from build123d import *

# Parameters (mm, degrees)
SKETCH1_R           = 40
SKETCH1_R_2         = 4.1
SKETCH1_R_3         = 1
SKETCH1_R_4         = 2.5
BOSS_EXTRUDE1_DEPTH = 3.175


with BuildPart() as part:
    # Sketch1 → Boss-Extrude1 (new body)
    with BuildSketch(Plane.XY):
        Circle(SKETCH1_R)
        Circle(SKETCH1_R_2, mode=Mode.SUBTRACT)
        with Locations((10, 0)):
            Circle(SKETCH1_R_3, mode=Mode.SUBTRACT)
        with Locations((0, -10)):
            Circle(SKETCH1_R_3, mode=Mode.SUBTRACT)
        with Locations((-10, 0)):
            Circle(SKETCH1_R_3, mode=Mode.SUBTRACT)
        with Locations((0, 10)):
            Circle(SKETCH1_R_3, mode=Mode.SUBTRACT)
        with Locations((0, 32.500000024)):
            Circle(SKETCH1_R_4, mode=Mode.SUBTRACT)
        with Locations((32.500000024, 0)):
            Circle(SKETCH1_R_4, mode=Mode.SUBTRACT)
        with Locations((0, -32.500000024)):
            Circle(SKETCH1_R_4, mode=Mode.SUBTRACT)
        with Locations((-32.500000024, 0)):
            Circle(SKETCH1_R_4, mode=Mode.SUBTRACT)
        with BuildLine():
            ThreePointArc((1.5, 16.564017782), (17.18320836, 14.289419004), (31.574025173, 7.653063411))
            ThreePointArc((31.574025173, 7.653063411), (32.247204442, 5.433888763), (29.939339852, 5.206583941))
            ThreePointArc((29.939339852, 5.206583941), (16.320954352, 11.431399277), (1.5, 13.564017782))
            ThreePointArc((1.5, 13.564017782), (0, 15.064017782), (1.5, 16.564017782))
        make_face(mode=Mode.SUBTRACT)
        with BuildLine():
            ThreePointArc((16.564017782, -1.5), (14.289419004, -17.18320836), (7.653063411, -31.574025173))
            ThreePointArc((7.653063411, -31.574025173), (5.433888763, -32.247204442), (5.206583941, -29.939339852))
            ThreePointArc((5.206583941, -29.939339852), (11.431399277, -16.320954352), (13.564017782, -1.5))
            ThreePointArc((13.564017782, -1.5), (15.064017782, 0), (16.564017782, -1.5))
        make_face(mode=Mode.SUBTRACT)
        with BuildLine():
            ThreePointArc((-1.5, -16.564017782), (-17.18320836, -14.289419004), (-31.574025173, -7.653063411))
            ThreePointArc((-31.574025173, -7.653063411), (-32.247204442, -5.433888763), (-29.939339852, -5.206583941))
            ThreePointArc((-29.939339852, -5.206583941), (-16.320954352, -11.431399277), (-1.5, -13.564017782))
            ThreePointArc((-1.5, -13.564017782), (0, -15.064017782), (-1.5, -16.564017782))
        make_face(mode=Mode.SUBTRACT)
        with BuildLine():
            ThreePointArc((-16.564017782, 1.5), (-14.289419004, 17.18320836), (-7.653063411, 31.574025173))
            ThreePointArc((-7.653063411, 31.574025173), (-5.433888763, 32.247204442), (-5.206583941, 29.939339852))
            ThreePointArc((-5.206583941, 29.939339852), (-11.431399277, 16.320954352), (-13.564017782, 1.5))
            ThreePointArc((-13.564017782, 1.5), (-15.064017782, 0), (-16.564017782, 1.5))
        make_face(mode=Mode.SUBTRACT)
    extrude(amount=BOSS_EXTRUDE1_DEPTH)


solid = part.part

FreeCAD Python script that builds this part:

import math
import FreeCAD as App
import Part
import Sketcher

doc = App.newDocument("Part")
body = doc.addObject("PartDesign::Body", "Body")

# Sketch on XY plane
sketch1 = body.newObject("Sketcher::SketchObject", "Sketch")
sketch1.AttachmentSupport = (doc.getObject("XY_Plane"), [""])
sketch1.MapMode = "FlatFace"
sketch1.addGeometry([
    Part.Circle(App.Vector(0, 0, 0), App.Vector(0, 0, 1), 40),  # 0
    Part.ArcOfCircle(Part.Circle(App.Vector(-1.5, -15.1, 0), App.Vector(0, 0, 1), 1.5), math.radians(-90), math.radians(90)),  # 1
    Part.ArcOfCircle(Part.Circle(App.Vector(-1.5, 38.6, 0), App.Vector(0, 0, 1), 55.2), math.radians(-123), math.radians(-90)),  # 2
    Part.ArcOfCircle(Part.Circle(App.Vector(-31, -6.3, 0), App.Vector(0, 0, 1), 1.5), math.radians(45), math.radians(247)),  # 3
    Part.ArcOfCircle(Part.Circle(App.Vector(-1.5, 39, 0), App.Vector(0, 0, 1), 52.6), math.radians(-123), math.radians(-90)),  # 4
    Part.Circle(App.Vector(0, -32.5, 0), App.Vector(0, 0, 1), 2.5),  # 5
    Part.Circle(App.Vector(0, -10, 0), App.Vector(0, 0, 1), 1),  # 6
    Part.ArcOfCircle(Part.Circle(App.Vector(15.1, -1.5, 0), App.Vector(0, 0, 1), 1.5), math.radians(0), math.radians(180)),  # 7
    Part.ArcOfCircle(Part.Circle(App.Vector(-38.6, -1.5, 0), App.Vector(0, 0, 1), 55.2), math.radians(-33), math.radians(0)),  # 8
    Part.ArcOfCircle(Part.Circle(App.Vector(6.3, -31, 0), App.Vector(0, 0, 1), 1.5), math.radians(135), math.radians(337)),  # 9
    Part.ArcOfCircle(Part.Circle(App.Vector(-39, -1.5, 0), App.Vector(0, 0, 1), 52.6), math.radians(-33), math.radians(0)),  # 10
    Part.Circle(App.Vector(-32.5, 0, 0), App.Vector(0, 0, 1), 2.5),  # 11
    Part.Circle(App.Vector(-10, 0, 0), App.Vector(0, 0, 1), 1),  # 12
    Part.ArcOfCircle(Part.Circle(App.Vector(-15.1, 1.5, 0), App.Vector(0, 0, 1), 1.5), math.radians(180), math.radians(360)),  # 13
    Part.ArcOfCircle(Part.Circle(App.Vector(38.6, 1.5, 0), App.Vector(0, 0, 1), 55.2), math.radians(147), math.radians(180)),  # 14
    Part.ArcOfCircle(Part.Circle(App.Vector(-6.3, 31, 0), App.Vector(0, 0, 1), 1.5), math.radians(-45), math.radians(157)),  # 15
    Part.ArcOfCircle(Part.Circle(App.Vector(39, 1.5, 0), App.Vector(0, 0, 1), 52.6), math.radians(147), math.radians(180)),  # 16
    Part.Circle(App.Vector(0, 0, 0), App.Vector(0, 0, 1), 4.1),  # 17
    Part.Circle(App.Vector(10, 0, 0), App.Vector(0, 0, 1), 1),  # 18
    Part.Circle(App.Vector(0, 10, 0), App.Vector(0, 0, 1), 1),  # 19
    Part.ArcOfCircle(Part.Circle(App.Vector(1.5, 15.1, 0), App.Vector(0, 0, 1), 1.5), math.radians(90), math.radians(270)),  # 20
    Part.ArcOfCircle(Part.Circle(App.Vector(1.5, -38.6, 0), App.Vector(0, 0, 1), 55.2), math.radians(57), math.radians(90)),  # 21
    Part.ArcOfCircle(Part.Circle(App.Vector(31, 6.3, 0), App.Vector(0, 0, 1), 1.5), math.radians(-135), math.radians(67)),  # 22
    Part.ArcOfCircle(Part.Circle(App.Vector(1.5, -39, 0), App.Vector(0, 0, 1), 52.6), math.radians(57), math.radians(90)),  # 23
    Part.Circle(App.Vector(32.5, 0, 0), App.Vector(0, 0, 1), 2.5),  # 24
    Part.Circle(App.Vector(0, 32.5, 0), App.Vector(0, 0, 1), 2.5),  # 25
], False)
sketch1.addConstraint([
    Sketcher.Constraint("Tangent", 1, 1, 2, 2),
    Sketcher.Constraint("Coincident", 2, 1, 3, 2),
    Sketcher.Constraint("Coincident", 3, 1, 4, 1),
    Sketcher.Constraint("Tangent", 4, 2, 1, 2),
    Sketcher.Constraint("Tangent", 7, 1, 8, 2),
    Sketcher.Constraint("Coincident", 8, 1, 9, 2),
    Sketcher.Constraint("Coincident", 9, 1, 10, 1),
    Sketcher.Constraint("Tangent", 10, 2, 7, 2),
    Sketcher.Constraint("Tangent", 13, 1, 14, 2),
    Sketcher.Constraint("Coincident", 14, 1, 15, 2),
    Sketcher.Constraint("Coincident", 15, 1, 16, 1),
    Sketcher.Constraint("Tangent", 16, 2, 13, 2),
    Sketcher.Constraint("Tangent", 20, 1, 21, 2),
    Sketcher.Constraint("Coincident", 21, 1, 22, 2),
    Sketcher.Constraint("Coincident", 22, 1, 23, 1),
    Sketcher.Constraint("Tangent", 23, 2, 20, 2),
    Sketcher.Constraint("Coincident", 0, 3, -1, 1),
    Sketcher.Constraint("Coincident", 17, 3, -1, 1),
    Sketcher.Constraint("Equal", 1, 3),
    Sketcher.Constraint("Equal", 3, 7),
    Sketcher.Constraint("Equal", 2, 8),
    Sketcher.Constraint("Equal", 7, 9),
    Sketcher.Constraint("Equal", 4, 10),
    Sketcher.Constraint("Equal", 5, 11),
    Sketcher.Constraint("Equal", 6, 12),
    Sketcher.Constraint("Equal", 9, 13),
    Sketcher.Constraint("Equal", 8, 14),
    Sketcher.Constraint("Equal", 13, 15),
    Sketcher.Constraint("Equal", 10, 16),
    Sketcher.Constraint("Equal", 12, 18),
    Sketcher.Constraint("Equal", 18, 19),
    Sketcher.Constraint("Equal", 15, 20),
    Sketcher.Constraint("Equal", 14, 21),
    Sketcher.Constraint("Equal", 20, 22),
    Sketcher.Constraint("Equal", 16, 23),
    Sketcher.Constraint("Equal", 11, 24),
    Sketcher.Constraint("Equal", 24, 25),
    Sketcher.Constraint("Symmetric", 7, 3, 13, 3, -1, 1),
    Sketcher.Constraint("Symmetric", 9, 3, 15, 3, -1, 1),
    Sketcher.Constraint("Symmetric", 12, 3, 18, 3, -1, 1),
    Sketcher.Constraint("Symmetric", 6, 3, 19, 3, -1, 1),
    Sketcher.Constraint("Symmetric", 1, 3, 20, 3, -1, 1),
    Sketcher.Constraint("Symmetric", 3, 3, 22, 3, -1, 1),
    Sketcher.Constraint("Symmetric", 11, 3, 24, 3, -1, 1),
    Sketcher.Constraint("Symmetric", 5, 3, 25, 3, -1, 1),
    Sketcher.Constraint("PointOnObject", 5, 3, -2),
    Sketcher.Constraint("PointOnObject", 6, 3, -2),
    Sketcher.Constraint("PointOnObject", 11, 3, -1),
    Sketcher.Constraint("PointOnObject", 12, 3, -1),
    Sketcher.Constraint("Horizontal", 7, 3, 8, 3),
    Sketcher.Constraint("Horizontal", 8, 3, 10, 3),
    Sketcher.Constraint("Horizontal", 13, 3, 14, 3),
    Sketcher.Constraint("Horizontal", 14, 3, 16, 3),
    Sketcher.Constraint("Vertical", 1, 3, 2, 3),
    Sketcher.Constraint("Vertical", 2, 3, 4, 3),
    Sketcher.Constraint("Vertical", 20, 3, 21, 3),
    Sketcher.Constraint("Vertical", 21, 3, 23, 3),
    Sketcher.Constraint("Diameter", 0, 80.0),
    Sketcher.Constraint("Diameter", 5, 5.0),
    Sketcher.Constraint("Diameter", 6, 2.0),
    Sketcher.Constraint("Diameter", 17, 8.2),
    Sketcher.Constraint("Radius", 1, 1.5),
    Sketcher.Constraint("DistanceX", 3, 3, -1, 1, 31.0),
    Sketcher.Constraint("DistanceY", 6, 3, -1, 1, 10.0),
    Sketcher.Constraint("DistanceY", 9, 3, -1, 1, 31.0),
    Sketcher.Constraint("DistanceX", 12, 3, -1, 1, 10.0),
    Sketcher.Constraint("DistanceY", 5, 3, 7, 3, 31.0),
    Sketcher.Constraint("DistanceY", 7, 3, 14, 3, 3.0),
    Sketcher.Constraint("DistanceX", 1, 3, 21, 3, 3.0),
    Sketcher.Constraint("DistanceX", 11, 3, -1, 1, 32.5),
    Sketcher.Constraint("Radius", 4, 52.566539),
    Sketcher.Constraint("Radius", 2, 55.204642),
    Sketcher.Constraint("DistanceX", 8, 3, 2, 1, 7.066599),
    Sketcher.Constraint("DistanceY", 21, 3, 8, 1, 7.066599),
    Sketcher.Constraint("DistanceY", -1, 1, 4, 3, 39.002522),
    Sketcher.Constraint("DistanceX", 10, 3, -1, 1, 39.002522),
])
pad1 = body.newObject("PartDesign::Pad", "Pad")
pad1.Profile = sketch1
pad1.Length = 3.175

doc.recompute()
